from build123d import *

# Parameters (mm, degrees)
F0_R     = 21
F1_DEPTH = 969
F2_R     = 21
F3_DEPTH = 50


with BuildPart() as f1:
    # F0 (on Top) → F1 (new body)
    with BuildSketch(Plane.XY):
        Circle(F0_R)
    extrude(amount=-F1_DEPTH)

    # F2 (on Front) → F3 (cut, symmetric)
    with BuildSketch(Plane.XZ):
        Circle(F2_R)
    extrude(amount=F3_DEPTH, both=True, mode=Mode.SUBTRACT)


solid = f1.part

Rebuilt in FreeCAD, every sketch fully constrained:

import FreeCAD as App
import Part
import Sketcher

doc = App.newDocument("Part")
body = doc.addObject("PartDesign::Body", "Body")

sketch1 = body.newObject("Sketcher::SketchObject", "Sketch")
sketch1.AttachmentSupport = (doc.getObject("XY_Plane"), [""])
sketch1.MapMode = "FlatFace"
sketch1.addGeometry(Part.Circle(App.Vector(0, 0, 0), App.Vector(0, 0, 1), 21), False)
sketch1.addConstraint([
    Sketcher.Constraint("Coincident", 0, 3, -1, 1),
    Sketcher.Constraint("Diameter", 0, 42.0),
])
pad1 = body.newObject("PartDesign::Pad", "Pad")
pad1.Profile = sketch1
pad1.Length = 969
pad1.Reversed = True

sketch2 = body.newObject("Sketcher::SketchObject", "Sketch001")
sketch2.AttachmentSupport = (doc.getObject("XZ_Plane"), [""])
sketch2.MapMode = "FlatFace"
sketch2.addGeometry(Part.Circle(App.Vector(0, 0, 0), App.Vector(0, 0, 1), 21), False)
sketch2.addConstraint([
    Sketcher.Constraint("Coincident", 0, 3, -1, 1),
    Sketcher.Constraint("Diameter", 0, 42.0),
])
pocket1 = body.newObject("PartDesign::Pocket", "Pocket")
pocket1.Profile = sketch2
pocket1.Length = 100
pocket1.Midplane = True

doc.recompute()
